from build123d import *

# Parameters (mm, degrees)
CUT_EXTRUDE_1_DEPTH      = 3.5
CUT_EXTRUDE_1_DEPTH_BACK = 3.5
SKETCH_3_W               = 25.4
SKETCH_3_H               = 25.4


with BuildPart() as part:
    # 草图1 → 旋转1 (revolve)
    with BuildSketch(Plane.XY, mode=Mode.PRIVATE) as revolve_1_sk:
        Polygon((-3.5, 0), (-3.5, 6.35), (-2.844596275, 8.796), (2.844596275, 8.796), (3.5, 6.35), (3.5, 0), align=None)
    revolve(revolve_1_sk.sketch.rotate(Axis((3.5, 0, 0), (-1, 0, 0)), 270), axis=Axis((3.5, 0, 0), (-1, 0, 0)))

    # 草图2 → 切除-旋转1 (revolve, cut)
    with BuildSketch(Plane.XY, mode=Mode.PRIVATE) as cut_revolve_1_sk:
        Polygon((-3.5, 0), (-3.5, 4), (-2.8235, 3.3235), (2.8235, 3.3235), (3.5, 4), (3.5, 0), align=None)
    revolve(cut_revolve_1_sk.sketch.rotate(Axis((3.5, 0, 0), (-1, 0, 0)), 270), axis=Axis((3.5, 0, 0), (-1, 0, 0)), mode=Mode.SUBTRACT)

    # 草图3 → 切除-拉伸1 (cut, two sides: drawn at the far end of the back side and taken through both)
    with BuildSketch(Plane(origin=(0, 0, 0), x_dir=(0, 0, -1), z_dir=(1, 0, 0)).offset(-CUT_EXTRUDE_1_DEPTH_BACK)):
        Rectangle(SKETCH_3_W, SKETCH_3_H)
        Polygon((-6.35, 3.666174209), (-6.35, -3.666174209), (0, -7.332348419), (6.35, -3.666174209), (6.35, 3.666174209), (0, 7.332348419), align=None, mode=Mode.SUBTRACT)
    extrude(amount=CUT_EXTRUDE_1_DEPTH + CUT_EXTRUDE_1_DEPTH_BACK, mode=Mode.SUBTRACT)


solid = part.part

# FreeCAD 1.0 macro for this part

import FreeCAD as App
import Part
import Sketcher
Q = App.Units.Quantity

doc = App.newDocument("Part")
body = doc.addObject("PartDesign::Body", "Body")

sketch1 = doc.addObject("Sketcher::SketchObject", "Sketch")
body.addObject(sketch1)
sketch1.AttachmentSupport = (doc.XY_Plane, [""])
sketch1.MapMode = "FlatFace"
sketch1.addGeometry(Part.LineSegment(App.Vector(-3.5, 6.3, 0), App.Vector(-3.5, 0, 0)), False)
sketch1.addGeometry(Part.LineSegment(App.Vector(-3.5, 0, 0), App.Vector(3.5, 0, 0)), False)
sketch1.addGeometry(Part.LineSegment(App.Vector(3.5, 0, 0), App.Vector(3.5, 6.3, 0)), False)
sketch1.addGeometry(Part.LineSegment(App.Vector(3.5, 6.3, 0), App.Vector(2.8, 8.8, 0)), False)
sketch1.addGeometry(Part.LineSegment(App.Vector(2.8, 8.8, 0), App.Vector(-2.8, 8.8, 0)), False)
sketch1.addGeometry(Part.LineSegment(App.Vector(-2.8, 8.8, 0), App.Vector(-3.5, 6.3, 0)), False)
sketch1.addConstraint(Sketcher.Constraint("Coincident", 0, 2, 1, 1))
sketch1.addConstraint(Sketcher.Constraint("Coincident", 1, 2, 2, 1))
sketch1.addConstraint(Sketcher.Constraint("Coincident", 2, 2, 3, 1))
sketch1.addConstraint(Sketcher.Constraint("Coincident", 3, 2, 4, 1))
sketch1.addConstraint(Sketcher.Constraint("Coincident", 4, 2, 5, 1))
sketch1.addConstraint(Sketcher.Constraint("Coincident", 5, 2, 0, 1))
sketch1.addConstraint(Sketcher.Constraint("Vertical", 0))
sketch1.addConstraint(Sketcher.Constraint("Horizontal", 1))
sketch1.addConstraint(Sketcher.Constraint("Vertical", 2))
sketch1.addConstraint(Sketcher.Constraint("Horizontal", 4))
sketch1.addConstraint(Sketcher.Constraint("Symmetric", 0, 2, 1, 2, -1, 1))
sketch1.addConstraint(Sketcher.Constraint("Horizontal", 2, 2, 5, 2))
sketch1.addConstraint(Sketcher.Constraint("Equal", 3, 5))
sketch1.addConstraint(Sketcher.Constraint("DistanceX", 1, 1, 1, 2, 7.0))
sketch1.addConstraint(Sketcher.Constraint("Angle", 3, Q("105 deg")))
sketch1.addConstraint(Sketcher.Constraint("DistanceY", 0, 2, 0, 1, 6.35))
sketch1.addConstraint(Sketcher.Constraint("DistanceY", -1, 1, 3, 2, 8.796))
revolution = doc.addObject("PartDesign::Revolution", "Revolution")
body.addObject(revolution)
revolution.Profile = sketch1
revolution.ReferenceAxis = (sketch1, ["H_Axis"])
revolution.Angle = 360

sketch2 = doc.addObject("Sketcher::SketchObject", "Sketch001")
body.addObject(sketch2)
sketch2.AttachmentSupport = (doc.XY_Plane, [""])
sketch2.MapMode = "FlatFace"
sketch2.addGeometry(Part.LineSegment(App.Vector(-3.5, 4, 0), App.Vector(-3.5, 0, 0)), False)
sketch2.addGeometry(Part.LineSegment(App.Vector(-3.5, 0, 0), App.Vector(3.5, 0, 0)), False)
sketch2.addGeometry(Part.LineSegment(App.Vector(3.5, 0, 0), App.Vector(3.5, 4, 0)), False)
sketch2.addGeometry(Part.LineSegment(App.Vector(3.5, 4, 0), App.Vector(2.8, 3.3, 0)), False)
sketch2.addGeometry(Part.LineSegment(App.Vector(2.8, 3.3, 0), App.Vector(-2.8, 3.3, 0)), False)
sketch2.addGeometry(Part.LineSegment(App.Vector(-2.8, 3.3, 0), App.Vector(-3.5, 4, 0)), False)
sketch2.addConstraint(Sketcher.Constraint("Coincident", 0, 2, 1, 1))
sketch2.addConstraint(Sketcher.Constraint("Coincident", 1, 2, 2, 1))
sketch2.addConstraint(Sketcher.Constraint("Coincident", 2, 2, 3, 1))
sketch2.addConstraint(Sketcher.Constraint("Coincident", 3, 2, 4, 1))
sketch2.addConstraint(Sketcher.Constraint("Coincident", 4, 2, 5, 1))
sketch2.addConstraint(Sketcher.Constraint("Coincident", 5, 2, 0, 1))
sketch2.addConstraint(Sketcher.Constraint("Vertical", 0))
sketch2.addConstraint(Sketcher.Constraint("Horizontal", 1))
sketch2.addConstraint(Sketcher.Constraint("Vertical", 2))
sketch2.addConstraint(Sketcher.Constraint("Horizontal", 4))
sketch2.addConstraint(Sketcher.Constraint("Symmetric", 0, 2, 1, 2, -1, 1))
sketch2.addConstraint(Sketcher.Constraint("Perpendicular", 3, 5))
sketch2.addConstraint(Sketcher.Constraint("Horizontal", 2, 2, 5, 2))
sketch2.addConstraint(Sketcher.Constraint("Equal", 3, 5))
sketch2.addConstraint(Sketcher.Constraint("DistanceX", 1, 1, 1, 2, 7.0))
sketch2.addConstraint(Sketcher.Constraint("DistanceY", 0, 2, 0, 1, 4.0))
sketch2.addConstraint(Sketcher.Constraint("DistanceX", 4, 2, 4, 1, 5.647))
groove = doc.addObject("PartDesign::Groove", "Groove")
body.addObject(groove)
groove.Profile = sketch2
groove.ReferenceAxis = (sketch2, ["H_Axis"])
groove.Angle = 360

sketch3 = doc.addObject("Sketcher::SketchObject", "Sketch002")
body.addObject(sketch3)
sketch3.AttachmentSupport = (doc.YZ_Plane, [""])
sketch3.MapMode = "FlatFace"
sketch3.addGeometry(Part.LineSegment(App.Vector(13, 13, 0), App.Vector(-13, 13, 0)), False)
sketch3.addGeometry(Part.LineSegment(App.Vector(-13, 13, 0), App.Vector(-13, -13, 0)), False)
sketch3.addGeometry(Part.LineSegment(App.Vector(-13, -13, 0), App.Vector(13, -13, 0)), False)
sketch3.addGeometry(Part.LineSegment(App.Vector(13, -13, 0), App.Vector(13, 13, 0)), False)
sketch3.addGeometry(Part.LineSegment(App.Vector(-4, 6, 0), App.Vector(4, 6, 0)), False)
sketch3.addGeometry(Part.LineSegment(App.Vector(4, 6, 0), App.Vector(7, 0, 0)), False)
sketch3.addGeometry(Part.LineSegment(App.Vector(7, 0, 0), App.Vector(4, -6, 0)), False)
sketch3.addGeometry(Part.LineSegment(App.Vector(4, -6, 0), App.Vector(-4, -6, 0)), False)
sketch3.addGeometry(Part.LineSegment(App.Vector(-4, -6, 0), App.Vector(-7, 0, 0)), False)
sketch3.addGeometry(Part.LineSegment(App.Vector(-7, 0, 0), App.Vector(-4, 6, 0)), False)
sketch3.addConstraint(Sketcher.Constraint("Coincident", 0, 2, 1, 1))
sketch3.addConstraint(Sketcher.Constraint("Coincident", 1, 2, 2, 1))
sketch3.addConstraint(Sketcher.Constraint("Coincident", 2, 2, 3, 1))
sketch3.addConstraint(Sketcher.Constraint("Coincident", 3, 2, 0, 1))
sketch3.addConstraint(Sketcher.Constraint("Coincident", 4, 2, 5, 1))
sketch3.addConstraint(Sketcher.Constraint("Coincident", 5, 2, 6, 1))
sketch3.addConstraint(Sketcher.Constraint("Coincident", 6, 2, 7, 1))
sketch3.addConstraint(Sketcher.Constraint("Coincident", 7, 2, 8, 1))
sketch3.addConstraint(Sketcher.Constraint("Coincident", 8, 2, 9, 1))
sketch3.addConstraint(Sketcher.Constraint("Coincident", 9, 2, 4, 1))
sketch3.addConstraint(Sketcher.Constraint("Horizontal", 0))
sketch3.addConstraint(Sketcher.Constraint("Vertical", 1))
sketch3.addConstraint(Sketcher.Constraint("Horizontal", 2))
sketch3.addConstraint(Sketcher.Constraint("Vertical", 3))
sketch3.addConstraint(Sketcher.Constraint("Horizontal", 4))
sketch3.addConstraint(Sketcher.Constraint("Horizontal", 7))
sketch3.addConstraint(Sketcher.Constraint("Symmetric", 0, 2, 2, 2, -1, 1))
sketch3.addConstraint(Sketcher.Constraint("Symmetric", 4, 2, 7, 2, -1, 1))
sketch3.addConstraint(Sketcher.Constraint("Symmetric", 5, 2, 8, 2, -1, 1))
sketch3.addConstraint(Sketcher.Constraint("PointOnObject", 5, 2, -1))
sketch3.addConstraint(Sketcher.Constraint("Parallel", 6, 9))
sketch3.addConstraint(Sketcher.Constraint("Vertical", 4, 2, 6, 2))
sketch3.addConstraint(Sketcher.Constraint("Equal", 2, 1))
sketch3.addConstraint(Sketcher.Constraint("Angle", 5, Q("-60 deg")))
sketch3.addConstraint(Sketcher.Constraint("DistanceX", 0, 2, 0, 1, 25.4))
sketch3.addConstraint(Sketcher.Constraint("DistanceY", 6, 2, 4, 2, 12.7))
sketch3.addConstraint(Sketcher.Constraint("DistanceX", 4, 1, 4, 2, 7.332348))
pocket1 = doc.addObject("PartDesign::Pocket", "Pocket")
body.addObject(pocket1)
pocket1.Profile = sketch3
pocket1.Type = "ThroughAll"
pocket1.Midplane = True

doc.recompute()
